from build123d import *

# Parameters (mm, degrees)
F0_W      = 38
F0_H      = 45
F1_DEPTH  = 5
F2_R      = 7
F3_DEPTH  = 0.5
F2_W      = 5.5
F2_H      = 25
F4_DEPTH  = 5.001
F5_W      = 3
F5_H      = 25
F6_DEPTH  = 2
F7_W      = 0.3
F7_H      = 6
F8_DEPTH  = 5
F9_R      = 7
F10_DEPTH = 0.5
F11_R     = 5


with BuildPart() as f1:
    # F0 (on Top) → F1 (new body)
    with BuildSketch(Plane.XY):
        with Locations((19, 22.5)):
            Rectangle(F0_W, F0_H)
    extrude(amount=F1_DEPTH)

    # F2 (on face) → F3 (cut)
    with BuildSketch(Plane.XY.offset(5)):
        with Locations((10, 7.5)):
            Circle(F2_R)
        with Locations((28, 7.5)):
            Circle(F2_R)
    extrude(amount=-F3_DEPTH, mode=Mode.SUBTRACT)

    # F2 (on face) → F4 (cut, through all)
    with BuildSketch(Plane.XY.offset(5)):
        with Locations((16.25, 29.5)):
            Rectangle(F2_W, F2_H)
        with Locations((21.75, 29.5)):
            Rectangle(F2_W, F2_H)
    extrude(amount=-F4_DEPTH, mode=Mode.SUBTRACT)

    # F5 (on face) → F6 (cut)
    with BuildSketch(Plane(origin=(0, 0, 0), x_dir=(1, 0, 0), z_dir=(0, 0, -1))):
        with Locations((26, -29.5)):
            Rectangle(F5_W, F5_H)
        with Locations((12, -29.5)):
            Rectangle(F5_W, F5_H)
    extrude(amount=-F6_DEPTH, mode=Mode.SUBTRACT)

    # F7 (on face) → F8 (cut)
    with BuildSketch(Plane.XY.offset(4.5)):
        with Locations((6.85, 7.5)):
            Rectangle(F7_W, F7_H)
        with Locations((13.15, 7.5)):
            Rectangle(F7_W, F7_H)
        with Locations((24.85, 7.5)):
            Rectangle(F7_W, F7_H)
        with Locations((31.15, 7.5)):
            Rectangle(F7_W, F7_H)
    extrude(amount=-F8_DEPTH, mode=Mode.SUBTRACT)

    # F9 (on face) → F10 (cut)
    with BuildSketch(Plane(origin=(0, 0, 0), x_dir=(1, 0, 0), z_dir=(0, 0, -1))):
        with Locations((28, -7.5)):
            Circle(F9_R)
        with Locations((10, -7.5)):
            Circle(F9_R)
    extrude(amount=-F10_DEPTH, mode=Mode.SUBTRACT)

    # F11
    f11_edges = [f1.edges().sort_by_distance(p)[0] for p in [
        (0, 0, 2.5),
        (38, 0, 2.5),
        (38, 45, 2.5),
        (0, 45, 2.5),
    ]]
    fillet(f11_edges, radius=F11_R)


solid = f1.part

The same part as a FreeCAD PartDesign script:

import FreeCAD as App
import Part
import Sketcher
from FreeCAD import Vector
Q = App.Units.Quantity


def edges_at(feature, points):
    """Names of the edges that pass closest to the given points."""
    edges = feature.Shape.Edges
    near = lambda p: min(range(len(edges)), key=lambda i: edges[i].distToShape(Part.Vertex(*p))[0])
    return sorted({f"Edge{near(p) + 1}" for p in points})


def add_polygon(sketch, points):
    """Adds a closed chain of lines whose ends are joined by coincident constraints."""
    first, n = sketch.GeometryCount, len(points)
    for a, b in zip(points, points[1:] + points[:1]):
        sketch.addGeometry(Part.LineSegment(App.Vector(*a, 0), App.Vector(*b, 0)), False)
    for i in range(n):
        sketch.addConstraint(Sketcher.Constraint("Coincident", first + i, 2, first + (i + 1) % n, 1))

doc = App.newDocument("Part")
body = doc.addObject("PartDesign::Body", "Body")

sketch1 = body.newObject("Sketcher::SketchObject", "Sketch")
sketch1.AttachmentSupport = (doc.getObject("XY_Plane"), [""])
sketch1.MapMode = "FlatFace"
add_polygon(sketch1, [(0, 45), (0, 0), (38, 0), (38, 45)])
sketch1.addConstraint([
    Sketcher.Constraint("Vertical", 0),
    Sketcher.Constraint("Horizontal", 1),
    Sketcher.Constraint("Vertical", 2),
    Sketcher.Constraint("Horizontal", 3),
    Sketcher.Constraint("Coincident", 0, 2, -1, 1),
    Sketcher.Constraint("DistanceX", 1, 1, 1, 2, Q("38 mm")),
    Sketcher.Constraint("DistanceY", 0, 2, 0, 1, Q("45 mm")),
])
pad1 = body.newObject("PartDesign::Pad", "Pad")
pad1.Profile = sketch1
pad1.Length = 5

sketch2 = body.newObject("Sketcher::SketchObject", "Sketch001")
sketch2.AttachmentSupport = (doc.getObject("XY_Plane"), [""])
sketch2.MapMode = "FlatFace"
sketch2.AttachmentOffset = App.Placement(Vector(0, 0, 5), App.Rotation())
sketch2.addGeometry([
    Part.Circle(Vector(10, 8, 0), Vector(0, 0, 1), 7),
    Part.Circle(Vector(28, 8, 0), Vector(0, 0, 1), 7),
], False)
sketch2.addConstraint([
    Sketcher.Constraint("Equal", 0, 1),
    Sketcher.Constraint("Horizontal", 0, 3, 1, 3),
    Sketcher.Constraint("Diameter", 0, Q("14 mm")),
    Sketcher.Constraint("DistanceX", -1, 1, 0, 3, Q("10 mm")),
    Sketcher.Constraint("DistanceX", -1, 1, 1, 3, Q("28 mm")),
    Sketcher.Constraint("DistanceY", -1, 1, 0, 3, Q("7.5 mm")),
])
pocket1 = body.newObject("PartDesign::Pocket", "Pocket")
pocket1.Profile = sketch2
pocket1.Length = 0.5

sketch3 = body.newObject("Sketcher::SketchObject", "Sketch002")
sketch3.AttachmentSupport = (doc.getObject("XY_Plane"), [""])
sketch3.MapMode = "FlatFace"
sketch3.AttachmentOffset = App.Placement(Vector(0, 0, 5), App.Rotation())
add_polygon(sketch3, [(14, 42), (14, 17), (24, 17), (24, 42)])
sketch3.addConstraint([
    Sketcher.Constraint("Vertical", 0),
    Sketcher.Constraint("Horizontal", 1),
    Sketcher.Constraint("Vertical", 2),
    Sketcher.Constraint("Horizontal", 3),
    Sketcher.Constraint("DistanceX", 1, 1, 1, 2, Q("11 mm")),
    Sketcher.Constraint("DistanceY", 0, 2, 0, 1, Q("25 mm")),
    Sketcher.Constraint("DistanceY", -1, 1, 0, 2, Q("17 mm")),
    Sketcher.Constraint("DistanceX", -1, 1, 0, 2, Q("13.5 mm")),
])
pocket2 = body.newObject("PartDesign::Pocket", "Pocket001")
pocket2.Profile = sketch3
pocket2.Type = "ThroughAll"

sketch4 = body.newObject("Sketcher::SketchObject", "Sketch003")
sketch4.AttachmentSupport = (doc.getObject("XY_Plane"), [""])
sketch4.MapMode = "FlatFace"
add_polygon(sketch4, [(24.5, 17), (24.5, 42), (27.5, 42), (27.5, 17)])
add_polygon(sketch4, [(10.5, 17), (10.5, 42), (13.5, 42), (13.5, 17)])
sketch4.addConstraint([
    Sketcher.Constraint("Vertical", 0),
    Sketcher.Constraint("Horizontal", 1),
    Sketcher.Constraint("Vertical", 2),
    Sketcher.Constraint("Horizontal", 3),
    Sketcher.Constraint("Vertical", 4),
    Sketcher.Constraint("Horizontal", 5),
    Sketcher.Constraint("Vertical", 6),
    Sketcher.Constraint("Horizontal", 7),
    Sketcher.Constraint("Horizontal", 1, 2, 4, 2),
    Sketcher.Constraint("Horizontal", 3, 2, 6, 2),
    Sketcher.Constraint("Equal", 3, 5),
    Sketcher.Constraint("DistanceX", 1, 1, 1, 2, Q("3 mm")),
    Sketcher.Constraint("DistanceY", 0, 1, 0, 2, Q("25 mm")),
    Sketcher.Constraint("DistanceY", -1, 1, 0, 2, Q("42 mm")),
    Sketcher.Constraint("DistanceX", 4, 2, 0, 2, Q("14 mm")),
    Sketcher.Constraint("DistanceX", -1, 1, 0, 2, Q("24.5 mm")),
])
pocket3 = body.newObject("PartDesign::Pocket", "Pocket002")
pocket3.Profile = sketch4
pocket3.Length = 2
pocket3.Reversed = True

sketch5 = body.newObject("Sketcher::SketchObject", "Sketch004")
sketch5.AttachmentSupport = (doc.getObject("XY_Plane"), [""])
sketch5.MapMode = "FlatFace"
sketch5.AttachmentOffset = App.Placement(Vector(0, 0, 4.5), App.Rotation())
add_polygon(sketch5, [(6.7, 10.5), (6.7, 4.5), (7, 4.5), (7, 10.5)])
add_polygon(sketch5, [(13, 10.5), (13, 4.5), (13.3, 4.5), (13.3, 10.5)])
add_polygon(sketch5, [(24.7, 10.5), (24.7, 4.5), (25, 4.5), (25, 10.5)])
add_polygon(sketch5, [(31, 10.5), (31, 4.5), (31.3, 4.5), (31.3, 10.5)])
sketch5.addConstraint([
    Sketcher.Constraint("Vertical", 0),
    Sketcher.Constraint("Horizontal", 1),
    Sketcher.Constraint("Vertical", 2),
    Sketcher.Constraint("Horizontal", 3),
    Sketcher.Constraint("Vertical", 4),
    Sketcher.Constraint("Horizontal", 5),
    Sketcher.Constraint("Vertical", 6),
    Sketcher.Constraint("Horizontal", 7),
    Sketcher.Constraint("Vertical", 8),
    Sketcher.Constraint("Horizontal", 9),
    Sketcher.Constraint("Vertical", 10),
    Sketcher.Constraint("Horizontal", 11),
    Sketcher.Constraint("Vertical", 12),
    Sketcher.Constraint("Horizontal", 13),
    Sketcher.Constraint("Vertical", 14),
    Sketcher.Constraint("Horizontal", 15),
    Sketcher.Constraint("Horizontal", 1, 2, 4, 2),
    Sketcher.Constraint("Horizontal", 3, 2, 6, 2),
    Sketcher.Constraint("Horizontal", 5, 2, 8, 2),
    Sketcher.Constraint("Horizontal", 7, 2, 10, 2),
    Sketcher.Constraint("Horizontal", 9, 2, 12, 2),
    Sketcher.Constraint("Horizontal", 11, 2, 14, 2),
    Sketcher.Constraint("Equal", 3, 5),
    Sketcher.Constraint("Equal", 7, 9),
    Sketcher.Constraint("Equal", 11, 13),
    Sketcher.Constraint("DistanceY", 0, 2, 0, 1, Q("6 mm")),
    Sketcher.Constraint("DistanceX", 1, 1, 1, 2, Q("0.3 mm")),
    Sketcher.Constraint("DistanceX", -1, 1, 1, 2, Q("7 mm")),
    Sketcher.Constraint("DistanceX", -1, 1, 4, 2, Q("13 mm")),
    Sketcher.Constraint("DistanceX", -1, 1, 9, 2, Q("25 mm")),
    Sketcher.Constraint("DistanceX", -1, 1, 12, 2, Q("31 mm")),
    Sketcher.Constraint("DistanceY", -1, 1, 0, 2, Q("4.5 mm")),
])
pocket4 = body.newObject("PartDesign::Pocket", "Pocket003")
pocket4.Profile = sketch5
pocket4.Length = 5

sketch6 = body.newObject("Sketcher::SketchObject", "Sketch005")
sketch6.AttachmentSupport = (doc.getObject("XY_Plane"), [""])
sketch6.MapMode = "FlatFace"
sketch6.addGeometry([
    Part.Circle(Vector(28, 8, 0), Vector(0, 0, 1), 7),
    Part.Circle(Vector(10, 8, 0), Vector(0, 0, 1), 7),
], False)
sketch6.addConstraint([
    Sketcher.Constraint("Equal", 0, 1),
    Sketcher.Constraint("Horizontal", 0, 3, 1, 3),
    Sketcher.Constraint("Diameter", 0, Q("14 mm")),
    Sketcher.Constraint("DistanceX", -1, 1, 0, 3, Q("28 mm")),
    Sketcher.Constraint("DistanceX", -1, 1, 1, 3, Q("10 mm")),
    Sketcher.Constraint("DistanceY", -1, 1, 0, 3, Q("7.5 mm")),
])
pocket5 = body.newObject("PartDesign::Pocket", "Pocket004")
pocket5.Profile = sketch6
pocket5.Length = 0.5
pocket5.Reversed = True
doc.recompute()

fillet = body.newObject("PartDesign::Fillet", "Fillet")
fillet.Base = (pocket5, edges_at(pocket5, [
    (0, 0, 2.5),
    (38, 0, 2.5),
    (38, 45, 2.5),
    (0, 45, 2.5),
]))
fillet.Radius = 5

doc.recompute()
